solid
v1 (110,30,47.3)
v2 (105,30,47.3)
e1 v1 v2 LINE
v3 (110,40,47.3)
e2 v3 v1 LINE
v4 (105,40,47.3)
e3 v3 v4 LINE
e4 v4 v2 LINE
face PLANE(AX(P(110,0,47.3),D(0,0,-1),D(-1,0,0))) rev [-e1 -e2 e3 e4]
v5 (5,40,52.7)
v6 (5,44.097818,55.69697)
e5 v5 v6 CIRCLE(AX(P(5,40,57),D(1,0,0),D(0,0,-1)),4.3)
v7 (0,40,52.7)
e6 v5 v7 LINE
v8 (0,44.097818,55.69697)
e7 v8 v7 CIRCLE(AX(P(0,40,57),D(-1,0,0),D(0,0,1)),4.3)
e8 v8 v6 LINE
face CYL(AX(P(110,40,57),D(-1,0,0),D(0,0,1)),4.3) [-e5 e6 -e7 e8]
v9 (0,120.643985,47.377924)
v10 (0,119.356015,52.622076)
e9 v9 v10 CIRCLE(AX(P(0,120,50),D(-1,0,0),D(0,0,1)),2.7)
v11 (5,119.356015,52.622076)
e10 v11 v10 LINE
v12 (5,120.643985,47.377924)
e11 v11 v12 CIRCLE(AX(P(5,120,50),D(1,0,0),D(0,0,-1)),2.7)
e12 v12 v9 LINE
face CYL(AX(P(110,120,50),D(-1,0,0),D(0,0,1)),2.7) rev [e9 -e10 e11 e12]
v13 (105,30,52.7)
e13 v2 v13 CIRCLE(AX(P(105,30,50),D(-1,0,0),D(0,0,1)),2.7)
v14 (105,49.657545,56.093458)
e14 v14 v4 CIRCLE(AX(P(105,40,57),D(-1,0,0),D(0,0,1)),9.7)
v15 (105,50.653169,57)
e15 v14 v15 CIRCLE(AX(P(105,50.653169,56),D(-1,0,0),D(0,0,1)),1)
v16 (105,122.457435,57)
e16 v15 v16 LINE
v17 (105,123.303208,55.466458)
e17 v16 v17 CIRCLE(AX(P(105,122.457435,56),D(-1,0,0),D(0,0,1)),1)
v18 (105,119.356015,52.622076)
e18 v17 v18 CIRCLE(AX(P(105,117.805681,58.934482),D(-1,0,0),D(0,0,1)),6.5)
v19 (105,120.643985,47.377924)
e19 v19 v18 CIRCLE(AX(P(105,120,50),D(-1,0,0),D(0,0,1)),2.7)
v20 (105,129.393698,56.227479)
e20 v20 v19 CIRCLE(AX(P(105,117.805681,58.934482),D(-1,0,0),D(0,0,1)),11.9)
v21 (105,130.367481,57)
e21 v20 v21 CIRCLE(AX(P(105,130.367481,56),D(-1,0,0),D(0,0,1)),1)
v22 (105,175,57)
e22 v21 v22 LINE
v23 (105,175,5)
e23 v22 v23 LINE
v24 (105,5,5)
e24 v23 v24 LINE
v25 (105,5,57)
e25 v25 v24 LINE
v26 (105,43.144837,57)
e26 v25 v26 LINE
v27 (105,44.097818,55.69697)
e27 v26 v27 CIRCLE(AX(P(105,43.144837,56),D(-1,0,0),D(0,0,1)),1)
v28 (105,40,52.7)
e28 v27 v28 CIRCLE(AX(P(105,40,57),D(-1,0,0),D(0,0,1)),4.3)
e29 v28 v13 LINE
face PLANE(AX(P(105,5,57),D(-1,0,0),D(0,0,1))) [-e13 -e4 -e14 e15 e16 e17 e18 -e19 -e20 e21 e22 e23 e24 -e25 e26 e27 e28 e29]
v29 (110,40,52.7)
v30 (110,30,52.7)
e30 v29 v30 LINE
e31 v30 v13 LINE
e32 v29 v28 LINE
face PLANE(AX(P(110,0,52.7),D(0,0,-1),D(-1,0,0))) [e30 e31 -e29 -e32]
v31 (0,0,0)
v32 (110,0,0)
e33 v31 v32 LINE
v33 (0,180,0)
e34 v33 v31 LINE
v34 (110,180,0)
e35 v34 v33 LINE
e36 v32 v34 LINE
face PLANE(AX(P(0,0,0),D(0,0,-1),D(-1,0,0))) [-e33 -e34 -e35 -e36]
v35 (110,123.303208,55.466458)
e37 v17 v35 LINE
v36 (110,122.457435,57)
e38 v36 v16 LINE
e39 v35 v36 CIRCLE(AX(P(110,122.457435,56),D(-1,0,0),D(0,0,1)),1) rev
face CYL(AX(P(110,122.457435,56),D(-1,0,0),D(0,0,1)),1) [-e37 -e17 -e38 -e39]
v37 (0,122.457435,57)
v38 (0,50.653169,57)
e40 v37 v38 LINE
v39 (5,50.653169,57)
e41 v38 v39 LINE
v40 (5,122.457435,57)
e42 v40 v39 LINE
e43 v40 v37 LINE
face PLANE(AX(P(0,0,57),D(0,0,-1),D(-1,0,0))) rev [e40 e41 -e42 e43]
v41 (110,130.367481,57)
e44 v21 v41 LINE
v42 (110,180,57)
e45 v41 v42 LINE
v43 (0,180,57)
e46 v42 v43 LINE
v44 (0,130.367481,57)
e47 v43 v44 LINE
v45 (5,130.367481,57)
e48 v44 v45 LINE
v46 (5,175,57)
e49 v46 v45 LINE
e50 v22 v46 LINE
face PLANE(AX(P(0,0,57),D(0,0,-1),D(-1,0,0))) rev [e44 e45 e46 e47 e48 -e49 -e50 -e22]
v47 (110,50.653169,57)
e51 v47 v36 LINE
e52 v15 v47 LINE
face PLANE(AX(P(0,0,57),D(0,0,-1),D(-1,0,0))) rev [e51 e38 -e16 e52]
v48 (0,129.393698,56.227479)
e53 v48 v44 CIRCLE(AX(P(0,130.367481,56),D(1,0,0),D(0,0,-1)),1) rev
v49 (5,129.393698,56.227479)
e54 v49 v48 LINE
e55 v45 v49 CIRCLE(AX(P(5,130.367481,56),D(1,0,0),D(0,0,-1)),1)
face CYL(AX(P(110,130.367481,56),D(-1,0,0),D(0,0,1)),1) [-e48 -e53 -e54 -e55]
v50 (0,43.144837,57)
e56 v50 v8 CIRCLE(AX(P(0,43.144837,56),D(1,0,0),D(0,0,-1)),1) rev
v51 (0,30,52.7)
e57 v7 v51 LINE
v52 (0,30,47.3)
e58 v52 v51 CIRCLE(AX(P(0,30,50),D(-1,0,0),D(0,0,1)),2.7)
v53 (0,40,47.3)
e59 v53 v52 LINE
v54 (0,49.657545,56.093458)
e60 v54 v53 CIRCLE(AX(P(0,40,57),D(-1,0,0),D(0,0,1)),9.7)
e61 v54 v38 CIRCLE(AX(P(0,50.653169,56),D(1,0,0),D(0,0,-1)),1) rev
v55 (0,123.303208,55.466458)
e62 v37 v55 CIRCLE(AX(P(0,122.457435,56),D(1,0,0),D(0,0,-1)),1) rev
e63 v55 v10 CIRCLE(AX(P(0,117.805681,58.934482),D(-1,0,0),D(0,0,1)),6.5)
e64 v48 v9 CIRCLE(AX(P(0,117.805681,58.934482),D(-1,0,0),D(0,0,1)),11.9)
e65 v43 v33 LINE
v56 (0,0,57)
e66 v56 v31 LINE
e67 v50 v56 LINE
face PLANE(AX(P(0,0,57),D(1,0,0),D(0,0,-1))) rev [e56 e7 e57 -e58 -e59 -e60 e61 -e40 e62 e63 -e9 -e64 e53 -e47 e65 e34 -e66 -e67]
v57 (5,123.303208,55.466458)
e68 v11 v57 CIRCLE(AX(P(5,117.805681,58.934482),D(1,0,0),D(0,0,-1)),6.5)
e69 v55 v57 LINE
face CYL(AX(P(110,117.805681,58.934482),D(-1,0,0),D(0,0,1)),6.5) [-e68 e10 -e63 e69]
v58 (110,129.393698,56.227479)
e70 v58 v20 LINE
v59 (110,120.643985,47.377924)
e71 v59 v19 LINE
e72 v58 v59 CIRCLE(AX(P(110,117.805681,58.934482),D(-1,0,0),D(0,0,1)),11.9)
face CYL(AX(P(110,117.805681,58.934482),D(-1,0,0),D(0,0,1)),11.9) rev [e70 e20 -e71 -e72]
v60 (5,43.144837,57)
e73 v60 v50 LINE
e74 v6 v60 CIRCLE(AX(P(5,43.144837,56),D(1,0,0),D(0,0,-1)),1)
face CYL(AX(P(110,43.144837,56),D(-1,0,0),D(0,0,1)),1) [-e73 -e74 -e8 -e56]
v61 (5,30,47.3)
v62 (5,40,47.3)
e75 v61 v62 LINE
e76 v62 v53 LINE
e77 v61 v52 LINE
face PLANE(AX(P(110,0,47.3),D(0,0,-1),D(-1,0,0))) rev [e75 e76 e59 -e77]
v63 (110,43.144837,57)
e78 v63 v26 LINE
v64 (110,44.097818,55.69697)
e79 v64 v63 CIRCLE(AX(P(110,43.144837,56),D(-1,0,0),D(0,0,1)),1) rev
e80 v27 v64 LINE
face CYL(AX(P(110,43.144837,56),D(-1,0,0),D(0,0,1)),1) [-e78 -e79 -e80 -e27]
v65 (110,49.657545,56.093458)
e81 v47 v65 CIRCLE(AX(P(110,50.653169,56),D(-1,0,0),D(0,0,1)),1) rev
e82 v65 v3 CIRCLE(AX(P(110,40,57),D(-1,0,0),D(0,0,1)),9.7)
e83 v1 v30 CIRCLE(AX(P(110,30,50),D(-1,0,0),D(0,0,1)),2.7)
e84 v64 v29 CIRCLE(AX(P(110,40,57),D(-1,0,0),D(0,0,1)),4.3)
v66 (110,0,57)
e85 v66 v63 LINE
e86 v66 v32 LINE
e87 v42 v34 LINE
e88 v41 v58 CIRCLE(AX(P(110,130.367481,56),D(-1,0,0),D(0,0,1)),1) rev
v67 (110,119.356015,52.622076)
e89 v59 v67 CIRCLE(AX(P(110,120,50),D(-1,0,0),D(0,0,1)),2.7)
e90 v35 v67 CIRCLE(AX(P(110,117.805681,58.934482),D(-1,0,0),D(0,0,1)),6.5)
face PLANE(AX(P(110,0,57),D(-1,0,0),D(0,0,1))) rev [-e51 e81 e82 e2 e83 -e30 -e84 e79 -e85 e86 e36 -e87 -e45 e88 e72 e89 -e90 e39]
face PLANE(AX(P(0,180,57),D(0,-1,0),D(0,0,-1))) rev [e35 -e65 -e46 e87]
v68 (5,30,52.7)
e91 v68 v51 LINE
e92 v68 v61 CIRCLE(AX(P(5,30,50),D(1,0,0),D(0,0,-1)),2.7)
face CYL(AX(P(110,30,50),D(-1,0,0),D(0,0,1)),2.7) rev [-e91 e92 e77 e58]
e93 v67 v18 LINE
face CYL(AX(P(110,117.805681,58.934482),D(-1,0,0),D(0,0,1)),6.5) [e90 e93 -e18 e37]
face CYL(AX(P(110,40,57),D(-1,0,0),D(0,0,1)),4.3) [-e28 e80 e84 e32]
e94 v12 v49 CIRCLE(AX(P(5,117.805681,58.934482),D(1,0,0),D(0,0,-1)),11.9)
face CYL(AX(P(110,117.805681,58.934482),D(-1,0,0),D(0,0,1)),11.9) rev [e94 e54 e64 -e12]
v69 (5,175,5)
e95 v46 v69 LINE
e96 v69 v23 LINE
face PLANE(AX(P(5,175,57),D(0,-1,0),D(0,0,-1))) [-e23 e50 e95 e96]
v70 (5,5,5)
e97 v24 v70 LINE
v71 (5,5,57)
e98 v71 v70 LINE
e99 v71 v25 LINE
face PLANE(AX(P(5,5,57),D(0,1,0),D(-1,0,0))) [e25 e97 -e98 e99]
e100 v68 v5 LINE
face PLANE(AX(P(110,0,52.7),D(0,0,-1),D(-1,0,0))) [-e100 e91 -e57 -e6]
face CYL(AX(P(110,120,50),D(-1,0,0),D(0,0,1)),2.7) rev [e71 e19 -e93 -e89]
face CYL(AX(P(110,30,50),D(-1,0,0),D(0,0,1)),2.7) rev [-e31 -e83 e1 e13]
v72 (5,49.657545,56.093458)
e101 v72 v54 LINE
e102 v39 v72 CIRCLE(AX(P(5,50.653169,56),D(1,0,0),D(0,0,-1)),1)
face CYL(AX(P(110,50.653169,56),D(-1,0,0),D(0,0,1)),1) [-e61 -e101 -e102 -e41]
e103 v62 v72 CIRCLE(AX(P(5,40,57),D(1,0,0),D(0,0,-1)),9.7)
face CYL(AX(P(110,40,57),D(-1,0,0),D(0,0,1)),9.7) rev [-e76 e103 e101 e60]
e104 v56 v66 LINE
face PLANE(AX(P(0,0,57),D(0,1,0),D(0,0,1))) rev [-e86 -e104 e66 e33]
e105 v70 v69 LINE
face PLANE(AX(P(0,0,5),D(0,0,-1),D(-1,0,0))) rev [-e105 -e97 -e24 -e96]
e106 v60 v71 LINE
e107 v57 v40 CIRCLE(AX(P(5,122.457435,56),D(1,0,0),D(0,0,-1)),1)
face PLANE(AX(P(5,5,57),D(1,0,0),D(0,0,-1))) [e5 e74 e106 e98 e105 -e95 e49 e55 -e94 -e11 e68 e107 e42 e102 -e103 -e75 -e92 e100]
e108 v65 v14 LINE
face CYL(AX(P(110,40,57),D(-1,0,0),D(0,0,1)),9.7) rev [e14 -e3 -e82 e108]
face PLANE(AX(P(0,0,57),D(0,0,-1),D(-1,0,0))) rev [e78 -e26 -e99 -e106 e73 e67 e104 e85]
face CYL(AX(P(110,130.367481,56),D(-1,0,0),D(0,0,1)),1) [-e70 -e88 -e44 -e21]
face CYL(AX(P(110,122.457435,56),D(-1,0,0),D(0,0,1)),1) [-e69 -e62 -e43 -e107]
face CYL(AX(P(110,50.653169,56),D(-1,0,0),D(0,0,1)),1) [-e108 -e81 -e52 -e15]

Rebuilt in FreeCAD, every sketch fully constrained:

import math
import FreeCAD as App
import Part
import Sketcher
from FreeCAD import Vector
Q = App.Units.Quantity


def edges_at(feature, points):
    """Names of the edges that pass closest to the given points."""
    edges = feature.Shape.Edges
    near = lambda p: min(range(len(edges)), key=lambda i: edges[i].distToShape(Part.Vertex(*p))[0])
    return sorted({f"Edge{near(p) + 1}" for p in points})


def add_polygon(sketch, points):
    """Adds a closed chain of lines whose ends are joined by coincident constraints."""
    first, n = sketch.GeometryCount, len(points)
    for a, b in zip(points, points[1:] + points[:1]):
        sketch.addGeometry(Part.LineSegment(App.Vector(*a, 0), App.Vector(*b, 0)), False)
    for i in range(n):
        sketch.addConstraint(Sketcher.Constraint("Coincident", first + i, 2, first + (i + 1) % n, 1))

doc = App.newDocument("Part")
body = doc.addObject("PartDesign::Body", "Body")

sketch1 = body.newObject("Sketcher::SketchObject", "Sketch")
sketch1.AttachmentSupport = (doc.getObject("XY_Plane"), [""])
sketch1.MapMode = "FlatFace"
add_polygon(sketch1, [(0, 180), (0, 0), (110, 0), (110, 180)])
add_polygon(sketch1, [(105, 5), (5, 5), (5, 175), (105, 175)])
sketch1.addConstraint([
    Sketcher.Constraint("Vertical", 0),
    Sketcher.Constraint("Horizontal", 1),
    Sketcher.Constraint("Vertical", 2),
    Sketcher.Constraint("Horizontal", 3),
    Sketcher.Constraint("Horizontal", 4),
    Sketcher.Constraint("Vertical", 5),
    Sketcher.Constraint("Horizontal", 6),
    Sketcher.Constraint("Vertical", 7),
    Sketcher.Constraint("Coincident", 0, 2, -1, 1),
    Sketcher.Constraint("DistanceX", 1, 1, 1, 2, Q("110 mm")),
    Sketcher.Constraint("DistanceX", 4, 2, 4, 1, Q("100 mm")),
    Sketcher.Constraint("DistanceY", 0, 2, 0, 1, Q("180 mm")),
    Sketcher.Constraint("DistanceY", 5, 1, 5, 2, Q("170 mm")),
    Sketcher.Constraint("DistanceX", -1, 1, 4, 2, Q("5 mm")),
    Sketcher.Constraint("DistanceY", -1, 1, 4, 2, Q("5 mm")),
])
pad1 = body.newObject("PartDesign::Pad", "Pad")
pad1.Profile = sketch1
pad1.Length = 57

sketch2 = body.newObject("Sketcher::SketchObject", "Sketch001")
sketch2.AttachmentSupport = (doc.getObject("XY_Plane"), [""])
sketch2.MapMode = "FlatFace"
add_polygon(sketch2, [(110, 180), (110, 0), (0, 0), (0, 180)])
sketch2.addConstraint([
    Sketcher.Constraint("Vertical", 0),
    Sketcher.Constraint("Horizontal", 1),
    Sketcher.Constraint("Vertical", 2),
    Sketcher.Constraint("Horizontal", 3),
    Sketcher.Constraint("Coincident", 1, 2, -1, 1),
    Sketcher.Constraint("DistanceX", 1, 2, 1, 1, Q("110 mm")),
    Sketcher.Constraint("DistanceY", 0, 2, 0, 1, Q("180 mm")),
])
pad2 = body.newObject("PartDesign::Pad", "Pad001")
pad2.Profile = sketch2
pad2.Length = 5

sketch3 = body.newObject("Sketcher::SketchObject", "Sketch002")
sketch3.AttachmentSupport = (doc.getObject("YZ_Plane"), [""])
sketch3.MapMode = "FlatFace"
sketch3.addGeometry([
    Part.ArcOfCircle(Part.Circle(Vector(117.805681, 58.934482, 0), Vector(0, 0, 1), 6.5), math.radians(-76.201209), math.radians(-17.314264)),
    Part.ArcOfCircle(Part.Circle(Vector(117.80568, 58.934482, 0), Vector(0, 0, 1), 6.5), math.radians(-17.314264), math.radians(-12.138161)),
    Part.ArcOfCircle(Part.Circle(Vector(126.8, 57, 0), Vector(0, 0, 1), 2.7), math.radians(0), math.radians(167.861839)),
    Part.ArcOfCircle(Part.Circle(Vector(126.8, 57, 0), Vector(0, 0, 1), 2.7), math.radians(-12.13816), math.radians(0)),
    Part.ArcOfCircle(Part.Circle(Vector(117.805681, 58.934482, 0), Vector(0, 0, 1), 11.9), math.radians(-76.201209), math.radians(-12.138161)),
    Part.ArcOfCircle(Part.Circle(Vector(120, 50, 0), Vector(0, 0, 1), 2.7), math.radians(103.798791), math.radians(283.798791)),
    Part.ArcOfCircle(Part.Circle(Vector(40, 57, 0), Vector(0, 0, 1), 4.3), math.radians(-90), math.radians(0)),
    Part.ArcOfCircle(Part.Circle(Vector(47, 57, 0), Vector(0, 0, 1), 2.7), math.radians(0), math.radians(180)),
    Part.ArcOfCircle(Part.Circle(Vector(40, 57, 0), Vector(0, 0, 1), 9.7), math.radians(-90), math.radians(0)),
    Part.LineSegment(Vector(40, 47.3, 0), Vector(30, 47.3, 0)),
    Part.ArcOfCircle(Part.Circle(Vector(30, 50, 0), Vector(0, 0, 1), 2.7), math.radians(90), math.radians(270)),
    Part.LineSegment(Vector(30, 52.7, 0), Vector(40, 52.7, 0)),
], False)
sketch3.addConstraint([
    Sketcher.Constraint("Tangent", 0, 2, 1, 1),
    Sketcher.Constraint("Tangent", 1, 2, 2, 2),
    Sketcher.Constraint("Tangent", 2, 1, 3, 2),
    Sketcher.Constraint("Tangent", 3, 1, 4, 2),
    Sketcher.Constraint("Tangent", 4, 1, 5, 2),
    Sketcher.Constraint("Tangent", 5, 1, 0, 1),
    Sketcher.Constraint("Tangent", 6, 2, 7, 2),
    Sketcher.Constraint("Tangent", 7, 1, 8, 2),
    Sketcher.Constraint("Tangent", 8, 1, 9, 1),
    Sketcher.Constraint("Tangent", 9, 2, 10, 2),
    Sketcher.Constraint("Tangent", 10, 1, 11, 1),
    Sketcher.Constraint("Tangent", 11, 2, 6, 1),
    Sketcher.Constraint("Horizontal", 9),
    Sketcher.Constraint("Horizontal", 11),
    Sketcher.Constraint("Coincident", 4, 3, 0, 3),
    Sketcher.Constraint("Coincident", 8, 3, 6, 3),
    Sketcher.Constraint("Equal", 0, 1),
    Sketcher.Constraint("Equal", 2, 3),
    Sketcher.Constraint("Equal", 5, 7),
    Sketcher.Constraint("Horizontal", 3, 3, 6, 3),
    Sketcher.Constraint("Horizontal", 6, 3, 7, 3),
    Sketcher.Constraint("Horizontal", 5, 3, 10, 3),
    Sketcher.Constraint("Horizontal", 8, 3, 0, 2),
    Sketcher.Constraint("Horizontal", 0, 2, 2, 1),
    Sketcher.Constraint("Radius", 0, Q("6.5 mm")),
    Sketcher.Constraint("Radius", 2, Q("2.7 mm")),
    Sketcher.Constraint("Radius", 6, Q("4.3 mm")),
    Sketcher.Constraint("DistanceX", 9, 2, 9, 1, Q("10 mm")),
    Sketcher.Constraint("DistanceY", -1, 1, 2, 3, Q("57 mm")),
    Sketcher.Constraint("DistanceX", -1, 1, 5, 3, Q("120 mm")),
    Sketcher.Constraint("DistanceX", -1, 1, 6, 3, Q("40 mm")),
    Sketcher.Constraint("DistanceX", -1, 1, 2, 3, Q("126.8 mm")),
])
pocket1 = body.newObject("PartDesign::Pocket", "Pocket")
pocket1.Profile = sketch3
pocket1.Type = "ThroughAll"
pocket1.Reversed = True
doc.recompute()

fillet = body.newObject("PartDesign::Fillet", "Fillet")
fillet.Base = (pocket1, edges_at(pocket1, [
    (2.5, 49.7, 57),
    (107.5, 49.7, 57),
    (107.5, 44.3, 57),
    (2.5, 44.3, 57),
    (2.5, 124.011, 57),
    (2.5, 129.5, 57),
    (107.5, 124.011, 57),
    (107.5, 129.5, 57),
]))
fillet.Radius = 1

doc.recompute()
